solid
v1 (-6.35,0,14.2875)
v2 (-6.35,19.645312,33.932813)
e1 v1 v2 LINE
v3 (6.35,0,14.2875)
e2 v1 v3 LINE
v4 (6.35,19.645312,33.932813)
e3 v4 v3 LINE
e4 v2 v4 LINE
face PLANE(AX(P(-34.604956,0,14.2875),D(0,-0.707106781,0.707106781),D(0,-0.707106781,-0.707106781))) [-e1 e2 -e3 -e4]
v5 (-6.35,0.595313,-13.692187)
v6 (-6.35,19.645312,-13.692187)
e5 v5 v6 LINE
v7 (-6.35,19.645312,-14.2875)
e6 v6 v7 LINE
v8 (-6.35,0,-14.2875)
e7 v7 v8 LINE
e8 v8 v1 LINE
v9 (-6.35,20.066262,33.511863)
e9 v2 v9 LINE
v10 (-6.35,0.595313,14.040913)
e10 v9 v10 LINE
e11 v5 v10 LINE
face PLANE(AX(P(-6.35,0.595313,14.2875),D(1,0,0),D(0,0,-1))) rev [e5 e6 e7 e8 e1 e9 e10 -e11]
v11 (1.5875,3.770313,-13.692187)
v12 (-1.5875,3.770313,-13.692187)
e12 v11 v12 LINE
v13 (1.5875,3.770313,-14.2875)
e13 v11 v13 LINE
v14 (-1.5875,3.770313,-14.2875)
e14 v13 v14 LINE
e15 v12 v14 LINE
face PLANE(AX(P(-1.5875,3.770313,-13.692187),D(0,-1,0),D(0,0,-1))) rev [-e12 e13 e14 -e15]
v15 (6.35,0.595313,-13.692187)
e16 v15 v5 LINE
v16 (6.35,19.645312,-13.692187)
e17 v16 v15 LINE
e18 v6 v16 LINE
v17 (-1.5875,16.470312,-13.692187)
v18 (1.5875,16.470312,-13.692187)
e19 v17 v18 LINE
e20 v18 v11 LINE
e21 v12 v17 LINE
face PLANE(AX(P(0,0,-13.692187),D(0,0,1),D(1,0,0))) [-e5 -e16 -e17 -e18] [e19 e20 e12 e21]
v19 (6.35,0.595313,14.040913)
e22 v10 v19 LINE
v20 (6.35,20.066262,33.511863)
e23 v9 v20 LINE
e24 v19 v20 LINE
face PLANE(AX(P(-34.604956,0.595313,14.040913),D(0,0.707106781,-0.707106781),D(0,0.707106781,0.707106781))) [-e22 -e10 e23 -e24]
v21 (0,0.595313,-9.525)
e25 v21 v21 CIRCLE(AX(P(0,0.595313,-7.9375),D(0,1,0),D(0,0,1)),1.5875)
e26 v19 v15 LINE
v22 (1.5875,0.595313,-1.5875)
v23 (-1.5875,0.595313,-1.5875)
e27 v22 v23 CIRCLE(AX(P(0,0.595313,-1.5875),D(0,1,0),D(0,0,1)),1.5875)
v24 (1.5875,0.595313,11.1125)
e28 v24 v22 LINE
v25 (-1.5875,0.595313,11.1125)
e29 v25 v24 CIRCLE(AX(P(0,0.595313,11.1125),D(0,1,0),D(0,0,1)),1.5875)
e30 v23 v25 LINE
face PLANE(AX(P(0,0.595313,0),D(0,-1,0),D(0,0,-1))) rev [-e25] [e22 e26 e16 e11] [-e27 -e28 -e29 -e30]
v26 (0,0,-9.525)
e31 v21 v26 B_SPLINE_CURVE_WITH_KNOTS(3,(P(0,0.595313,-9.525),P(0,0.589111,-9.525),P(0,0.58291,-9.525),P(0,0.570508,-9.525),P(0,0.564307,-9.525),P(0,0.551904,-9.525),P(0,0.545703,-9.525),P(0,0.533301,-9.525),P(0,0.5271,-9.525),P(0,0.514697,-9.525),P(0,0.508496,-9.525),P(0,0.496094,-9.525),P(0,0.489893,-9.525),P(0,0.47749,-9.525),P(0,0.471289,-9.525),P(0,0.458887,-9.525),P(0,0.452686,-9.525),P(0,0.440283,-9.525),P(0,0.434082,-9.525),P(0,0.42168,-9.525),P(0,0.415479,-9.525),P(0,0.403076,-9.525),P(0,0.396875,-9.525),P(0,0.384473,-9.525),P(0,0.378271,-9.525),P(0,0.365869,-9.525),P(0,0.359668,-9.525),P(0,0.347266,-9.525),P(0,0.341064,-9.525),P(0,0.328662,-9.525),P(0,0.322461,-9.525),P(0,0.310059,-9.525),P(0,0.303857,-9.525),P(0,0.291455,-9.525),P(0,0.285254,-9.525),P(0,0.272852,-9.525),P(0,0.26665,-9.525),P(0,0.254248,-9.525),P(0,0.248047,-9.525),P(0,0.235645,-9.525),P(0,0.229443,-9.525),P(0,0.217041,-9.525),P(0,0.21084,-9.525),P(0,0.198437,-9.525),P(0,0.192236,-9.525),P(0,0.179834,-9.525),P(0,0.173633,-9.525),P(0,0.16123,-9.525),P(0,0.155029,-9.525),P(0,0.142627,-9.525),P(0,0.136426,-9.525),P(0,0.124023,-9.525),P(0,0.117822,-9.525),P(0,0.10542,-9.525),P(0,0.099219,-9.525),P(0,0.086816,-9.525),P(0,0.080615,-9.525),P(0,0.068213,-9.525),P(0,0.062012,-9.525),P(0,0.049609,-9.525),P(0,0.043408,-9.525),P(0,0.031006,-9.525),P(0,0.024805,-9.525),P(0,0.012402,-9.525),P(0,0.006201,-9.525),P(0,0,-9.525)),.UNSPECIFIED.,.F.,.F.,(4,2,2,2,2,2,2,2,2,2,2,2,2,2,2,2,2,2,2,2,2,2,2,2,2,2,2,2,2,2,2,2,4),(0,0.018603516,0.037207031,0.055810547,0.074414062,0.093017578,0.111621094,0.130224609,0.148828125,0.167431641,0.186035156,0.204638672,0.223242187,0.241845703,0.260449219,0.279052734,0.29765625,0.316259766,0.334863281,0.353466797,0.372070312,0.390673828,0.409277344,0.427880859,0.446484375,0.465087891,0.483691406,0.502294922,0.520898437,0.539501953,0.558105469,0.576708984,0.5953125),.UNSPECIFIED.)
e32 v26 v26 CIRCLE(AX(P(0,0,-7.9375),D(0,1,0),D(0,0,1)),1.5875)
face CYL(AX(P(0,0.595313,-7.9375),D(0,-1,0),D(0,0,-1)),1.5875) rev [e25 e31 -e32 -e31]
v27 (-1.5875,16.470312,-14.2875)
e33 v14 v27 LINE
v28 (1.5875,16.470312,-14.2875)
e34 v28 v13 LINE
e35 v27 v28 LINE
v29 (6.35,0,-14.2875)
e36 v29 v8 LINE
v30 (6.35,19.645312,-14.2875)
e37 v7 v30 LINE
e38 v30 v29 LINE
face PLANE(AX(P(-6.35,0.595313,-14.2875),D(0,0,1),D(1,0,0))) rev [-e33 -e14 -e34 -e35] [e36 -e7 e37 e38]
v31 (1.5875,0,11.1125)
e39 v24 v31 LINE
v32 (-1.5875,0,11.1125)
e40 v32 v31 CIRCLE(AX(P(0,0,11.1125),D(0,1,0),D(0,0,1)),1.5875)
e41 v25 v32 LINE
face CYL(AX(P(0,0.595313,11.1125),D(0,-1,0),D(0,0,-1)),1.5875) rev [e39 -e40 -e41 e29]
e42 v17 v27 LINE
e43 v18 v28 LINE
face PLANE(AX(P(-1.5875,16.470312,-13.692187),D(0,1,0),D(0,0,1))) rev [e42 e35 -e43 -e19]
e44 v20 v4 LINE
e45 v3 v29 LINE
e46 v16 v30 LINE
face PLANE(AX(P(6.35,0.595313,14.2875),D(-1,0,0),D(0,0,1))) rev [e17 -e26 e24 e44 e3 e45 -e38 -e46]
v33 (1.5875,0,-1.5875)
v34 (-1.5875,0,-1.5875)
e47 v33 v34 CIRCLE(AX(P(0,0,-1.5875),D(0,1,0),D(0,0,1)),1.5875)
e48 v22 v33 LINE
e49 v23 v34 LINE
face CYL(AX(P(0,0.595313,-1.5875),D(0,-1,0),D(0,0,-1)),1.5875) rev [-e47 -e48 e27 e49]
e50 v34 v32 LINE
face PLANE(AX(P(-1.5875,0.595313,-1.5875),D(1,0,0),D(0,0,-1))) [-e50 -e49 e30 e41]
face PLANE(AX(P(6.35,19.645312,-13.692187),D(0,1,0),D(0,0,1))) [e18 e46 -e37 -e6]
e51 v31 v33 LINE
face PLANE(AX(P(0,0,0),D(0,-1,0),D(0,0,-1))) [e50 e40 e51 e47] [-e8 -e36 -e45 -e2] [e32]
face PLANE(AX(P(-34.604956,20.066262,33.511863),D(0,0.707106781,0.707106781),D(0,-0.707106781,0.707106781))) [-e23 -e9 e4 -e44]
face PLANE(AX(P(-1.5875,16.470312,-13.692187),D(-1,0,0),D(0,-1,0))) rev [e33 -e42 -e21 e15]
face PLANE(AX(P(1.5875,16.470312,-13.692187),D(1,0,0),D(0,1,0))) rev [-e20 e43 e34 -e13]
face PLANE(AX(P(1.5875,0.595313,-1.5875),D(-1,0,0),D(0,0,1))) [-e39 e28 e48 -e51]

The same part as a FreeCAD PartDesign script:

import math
import FreeCAD as App
import Part
import Sketcher

V = App.Vector
Q = App.Units.Quantity


def add_polygon(sketch, points):
    """Adds a closed chain of lines whose ends are joined by coincident constraints."""
    first, n = sketch.GeometryCount, len(points)
    for a, b in zip(points, points[1:] + points[:1]):
        sketch.addGeometry(Part.LineSegment(App.Vector(*a, 0), App.Vector(*b, 0)), False)
    for i in range(n):
        sketch.addConstraint(Sketcher.Constraint("Coincident", first + i, 2, first + (i + 1) % n, 1))

doc = App.newDocument("Part")
params = doc.addObject("Spreadsheet::Sheet", "Params")
for row, (alias, value) in enumerate([
    ("sketch1_diameter", "0.125 in"),
    ("sketch1_width", "0.5 in"),
    ("sketch1_height", "1.125 in"),
    ("pad1_length", "0.595313 mm"),
    ("sketch2_width", "0.5 in"),
    ("sketch2_height", "0.75 in"),
    ("sketch2_width2", "0.125 in"),
    ("pad2_length", "0.595313 mm"),
    ("pad3_length", "0.5 in"),
], start=1):
    params.set(f"A{row}", alias)
    params.set(f"B{row}", "=" + value)
    params.setAlias(f"B{row}", alias)

body = doc.addObject("PartDesign::Body", "Body")

# Sketch on XZ plane
sketch1 = body.newObject("Sketcher::SketchObject", "Sketch")
sketch1.AttachmentSupport = (doc.getObject("XZ_Plane"), [""])
sketch1.MapMode = "FlatFace"
add_polygon(sketch1, [(-6.3, -14.3), (-6.3, 14.3), (6.3, 14.3), (6.3, -14.3)])  # lines 0-3
sketch1.addGeometry(Part.ArcOfCircle(Part.Circle(V(0, -1.6, 0), V(0, 0, 1), 1.6), math.radians(180), math.radians(360)), False)  # 4
sketch1.addGeometry(Part.LineSegment(V(1.6, -1.6, 0), V(1.6, 11.1, 0)), False)  # 5
sketch1.addGeometry(Part.ArcOfCircle(Part.Circle(V(0, 11.1, 0), V(0, 0, 1), 1.6), math.radians(0), math.radians(180)), False)  # 6
sketch1.addGeometry(Part.LineSegment(V(-1.6, 11.1, 0), V(-1.6, -1.6, 0)), False)  # 7
sketch1.addGeometry(Part.Circle(V(0, -7.9, 0), V(0, 0, 1), 1.6), False)  # 8
sketch1.addConstraint([
    Sketcher.Constraint("Tangent", 4, 2, 5, 1),
    Sketcher.Constraint("Tangent", 5, 2, 6, 1),
    Sketcher.Constraint("Tangent", 6, 2, 7, 1),
    Sketcher.Constraint("Tangent", 7, 2, 4, 1),
    Sketcher.Constraint("Vertical", 0),
    Sketcher.Constraint("Horizontal", 1),
    Sketcher.Constraint("Vertical", 2),
    Sketcher.Constraint("Horizontal", 3),
    Sketcher.Constraint("Vertical", 5),
    Sketcher.Constraint("Vertical", 7),
    Sketcher.Constraint("Equal", 6, 8),
    Sketcher.Constraint("Symmetric", 0, 2, 2, 2, -1, 1),
    Sketcher.Constraint("PointOnObject", 4, 3, -2),
    Sketcher.Constraint("PointOnObject", 8, 3, -2),
    Sketcher.Constraint("Equal", 3, 5),
    Sketcher.Constraint("Diameter", 8, Q("0.125 in")),
    Sketcher.Constraint("DistanceX", 1, 1, 1, 2, Q("0.5 in")),
    Sketcher.Constraint("DistanceY", 2, 2, 6, 3, Q("1 in")),
    Sketcher.Constraint("DistanceY", 0, 1, 0, 2, Q("1.125 in")),
    Sketcher.Constraint("DistanceY", 8, 3, 4, 3, Q("0.25 in")),
])
sketch1.setExpression("Constraints[19]", "Params.sketch1_diameter")
sketch1.setExpression("Constraints[20]", "Params.sketch1_width")
sketch1.setExpression("Constraints[22]", "Params.sketch1_height")
pad1 = body.newObject("PartDesign::Pad", "Pad")
pad1.Profile = sketch1
pad1.setExpression("Length", "Params.pad1_length")
pad1.Reversed = True

# Sketch on XY plane
sketch2 = body.newObject("Sketcher::SketchObject", "Sketch001")
sketch2.AttachmentSupport = (doc.getObject("XY_Plane"), [""])
sketch2.MapMode = "FlatFace"
sketch2.AttachmentOffset = App.Placement(V(0, 0, -0.5625 * 25.4), App.Rotation())
add_polygon(sketch2, [(6.3, 19.6), (6.3, 0.6), (-6.3, 0.6), (-6.3, 19.6)])  # lines 0-3
add_polygon(sketch2, [(-1.6, 3.8), (1.6, 3.8), (1.6, 16.5), (-1.6, 16.5)])  # lines 4-7
sketch2.addConstraint([
    Sketcher.Constraint("Vertical", 0),
    Sketcher.Constraint("Horizontal", 1),
    Sketcher.Constraint("Vertical", 2),
    Sketcher.Constraint("Horizontal", 3),
    Sketcher.Constraint("Horizontal", 4),
    Sketcher.Constraint("Vertical", 5),
    Sketcher.Constraint("Horizontal", 6),
    Sketcher.Constraint("Vertical", 7),
    Sketcher.Constraint("Equal", 3, 5),
    Sketcher.Constraint("DistanceX", 1, 2, 1, 1, Q("0.5 in")),
    Sketcher.Constraint("DistanceY", 0, 2, 0, 1, Q("0.75 in")),
    Sketcher.Constraint("DistanceX", 4, 1, 4, 2, Q("0.125 in")),
    Sketcher.Constraint("DistanceX", -1, 1, 0, 2, Q("0.25 in")),
    Sketcher.Constraint("DistanceX", -1, 1, 4, 2, Q("0.0625 in")),
    Sketcher.Constraint("DistanceY", 0, 2, 4, 2, Q("0.125 in")),
    Sketcher.Constraint("DistanceY", -1, 1, 0, 2, 0.595313),
])
sketch2.setExpression("Constraints[17]", "Params.sketch2_width")
sketch2.setExpression("Constraints[18]", "Params.sketch2_height")
sketch2.setExpression("Constraints[19]", "Params.sketch2_width2")
pad2 = body.newObject("PartDesign::Pad", "Pad001")
pad2.Profile = sketch2
pad2.setExpression("Length", "Params.pad2_length")

# Sketch on YZ plane
sketch3 = body.newObject("Sketcher::SketchObject", "Sketch002")
sketch3.AttachmentSupport = (doc.getObject("YZ_Plane"), [""])
sketch3.MapMode = "FlatFace"
sketch3.AttachmentOffset = App.Placement(V(0, 0, 0.25 * 25.4), App.Rotation())
add_polygon(sketch3, [(19.65, 33.93), (0, 14.29), (0.6, 14.29), (0.6, 14.04), (20.07, 33.51)])  # lines 0-4
sketch3.addConstraint([
    Sketcher.Constraint("Horizontal", 1),
    Sketcher.Constraint("Vertical", 2),
    Sketcher.Constraint("PointOnObject", 0, 2, -2),
    Sketcher.Constraint("Parallel", 0, 3),
    Sketcher.Constraint("Perpendicular", 3, 4),
    Sketcher.Constraint("Angle", 0, Q("-135 deg")),
    Sketcher.Constraint("DistanceX", 1, 2, 4, 2, Q("0.75 in")),
    Sketcher.Constraint("DistanceY", -1, 1, 0, 2, Q("0.5625 in")),
    Sketcher.Constraint("DistanceY", 2, 2, 4, 2, 19.891899),
    Sketcher.Constraint("DistanceX", 1, 1, 1, 2, 0.595313),
])
pad3 = body.newObject("PartDesign::Pad", "Pad002")
pad3.Profile = sketch3
pad3.setExpression("Length", "Params.pad3_length")
pad3.Reversed = True

doc.recompute()
